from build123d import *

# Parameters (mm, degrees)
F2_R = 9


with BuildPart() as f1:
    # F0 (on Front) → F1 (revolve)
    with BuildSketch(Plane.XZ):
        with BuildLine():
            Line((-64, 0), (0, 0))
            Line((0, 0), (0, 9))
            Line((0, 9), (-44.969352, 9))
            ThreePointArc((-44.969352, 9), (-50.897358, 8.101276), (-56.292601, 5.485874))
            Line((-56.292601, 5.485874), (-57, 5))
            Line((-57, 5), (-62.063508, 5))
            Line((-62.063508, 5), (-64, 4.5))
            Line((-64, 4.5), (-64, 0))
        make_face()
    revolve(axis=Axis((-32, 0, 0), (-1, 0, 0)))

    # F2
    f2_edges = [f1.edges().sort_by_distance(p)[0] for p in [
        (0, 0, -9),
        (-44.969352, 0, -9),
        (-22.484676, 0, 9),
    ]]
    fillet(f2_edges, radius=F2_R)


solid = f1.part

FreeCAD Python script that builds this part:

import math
import FreeCAD as App
import Part
import Sketcher


def edges_at(feature, points):
    """Names of the edges that pass closest to the given points."""
    edges = feature.Shape.Edges
    near = lambda p: min(range(len(edges)), key=lambda i: edges[i].distToShape(Part.Vertex(*p))[0])
    return sorted({f"Edge{near(p) + 1}" for p in points})

doc = App.newDocument("Part")
params = doc.addObject("Spreadsheet::Sheet", "Params")
for row, (alias, value) in enumerate([
    ("sketch1_width", "64 mm"),
    ("sketch1_height", "9 mm"),
    ("sketch1_length", "2 mm"),
    ("sketch1_height2", "4.5 mm"),
    ("revolution_angle", "360 deg"),
    ("fillet_radius", "9 mm"),
], start=1):
    params.set(f"A{row}", alias)
    params.set(f"B{row}", "=" + value)
    params.setAlias(f"B{row}", alias)

body = doc.addObject("PartDesign::Body", "Body")

# Sketch on XZ plane
sketch1 = body.newObject("Sketcher::SketchObject", "Sketch")
sketch1.AttachmentSupport = (doc.getObject("XZ_Plane"), [""])
sketch1.MapMode = "FlatFace"
sketch1.addGeometry(Part.LineSegment(App.Vector(-64, 0, 0), App.Vector(0, 0, 0)), False)
sketch1.addGeometry(Part.LineSegment(App.Vector(0, 0, 0), App.Vector(0, 9, 0)), False)
sketch1.addGeometry(Part.LineSegment(App.Vector(0, 9, 0), App.Vector(-44.969352, 9, 0)), False)
sketch1.addGeometry(Part.ArcOfCircle(Part.Circle(App.Vector(-44.969352, -11.000003, 0), App.Vector(0, 0, 1), 20.000003), math.radians(90.000001), math.radians(124.483049)), False)
sketch1.addGeometry(Part.LineSegment(App.Vector(-56.292601, 5.485874, 0), App.Vector(-57, 5, 0)), False)
sketch1.addGeometry(Part.LineSegment(App.Vector(-57, 5, 0), App.Vector(-62.063508, 5, 0)), False)
sketch1.addGeometry(Part.LineSegment(App.Vector(-62.063508, 5, 0), App.Vector(-64, 4.5, 0)), False)
sketch1.addGeometry(Part.LineSegment(App.Vector(-64, 4.5, 0), App.Vector(-64, 0, 0)), False)
sketch1.addConstraint(Sketcher.Constraint("Coincident", 0, 2, 1, 1))
sketch1.addConstraint(Sketcher.Constraint("Coincident", 1, 2, 2, 1))
sketch1.addConstraint(Sketcher.Constraint("Tangent", 2, 2, 3, 1))
sketch1.addConstraint(Sketcher.Constraint("Tangent", 3, 2, 4, 1))
sketch1.addConstraint(Sketcher.Constraint("Coincident", 4, 2, 5, 1))
sketch1.addConstraint(Sketcher.Constraint("Coincident", 5, 2, 6, 1))
sketch1.addConstraint(Sketcher.Constraint("Coincident", 6, 2, 7, 1))
sketch1.addConstraint(Sketcher.Constraint("Coincident", 7, 2, 0, 1))
sketch1.addConstraint(Sketcher.Constraint("Horizontal", 0))
sketch1.addConstraint(Sketcher.Constraint("Vertical", 1))
sketch1.addConstraint(Sketcher.Constraint("Horizontal", 2))
sketch1.addConstraint(Sketcher.Constraint("Horizontal", 5))
sketch1.addConstraint(Sketcher.Constraint("Vertical", 7))
sketch1.addConstraint(Sketcher.Constraint("Coincident", 0, 2, -1, 1))
sketch1.addConstraint(Sketcher.Constraint("DistanceX", 0, 1, 0, 2, 64.0))
sketch1.addConstraint(Sketcher.Constraint("DistanceY", 1, 1, 1, 2, 9.0))
sketch1.addConstraint(Sketcher.Constraint("Distance", 6, 2.0))
sketch1.addConstraint(Sketcher.Constraint("DistanceY", 7, 2, 7, 1, 4.5))
sketch1.addConstraint(Sketcher.Constraint("DistanceX", 4, 2, -1, 1, 57.0))
sketch1.addConstraint(Sketcher.Constraint("DistanceY", -1, 1, 4, 2, 5.0))
sketch1.addConstraint(Sketcher.Constraint("Radius", 3, 20.000003))
sketch1.addConstraint(Sketcher.Constraint("DistanceX", 3, 2, -1, 1, 56.292601))
sketch1.setExpression("Constraints[14]", "Params.sketch1_width")
sketch1.setExpression("Constraints[15]", "Params.sketch1_height")
sketch1.setExpression("Constraints[16]", "Params.sketch1_length")
sketch1.setExpression("Constraints[17]", "Params.sketch1_height2")
revolution = body.newObject("PartDesign::Revolution", "Revolution")
revolution.Profile = sketch1
revolution.ReferenceAxis = (sketch1, ["H_Axis"])
revolution.setExpression("Angle", "Params.revolution_angle")
doc.recompute()

fillet = body.newObject("PartDesign::Fillet", "Fillet")
fillet.Base = (revolution, edges_at(revolution, [(0, 0, -9), (-44.969, 0, -9), (-22.485, 0, 9)]))
fillet.setExpression("Radius", "Params.fillet_radius")

doc.recompute()
